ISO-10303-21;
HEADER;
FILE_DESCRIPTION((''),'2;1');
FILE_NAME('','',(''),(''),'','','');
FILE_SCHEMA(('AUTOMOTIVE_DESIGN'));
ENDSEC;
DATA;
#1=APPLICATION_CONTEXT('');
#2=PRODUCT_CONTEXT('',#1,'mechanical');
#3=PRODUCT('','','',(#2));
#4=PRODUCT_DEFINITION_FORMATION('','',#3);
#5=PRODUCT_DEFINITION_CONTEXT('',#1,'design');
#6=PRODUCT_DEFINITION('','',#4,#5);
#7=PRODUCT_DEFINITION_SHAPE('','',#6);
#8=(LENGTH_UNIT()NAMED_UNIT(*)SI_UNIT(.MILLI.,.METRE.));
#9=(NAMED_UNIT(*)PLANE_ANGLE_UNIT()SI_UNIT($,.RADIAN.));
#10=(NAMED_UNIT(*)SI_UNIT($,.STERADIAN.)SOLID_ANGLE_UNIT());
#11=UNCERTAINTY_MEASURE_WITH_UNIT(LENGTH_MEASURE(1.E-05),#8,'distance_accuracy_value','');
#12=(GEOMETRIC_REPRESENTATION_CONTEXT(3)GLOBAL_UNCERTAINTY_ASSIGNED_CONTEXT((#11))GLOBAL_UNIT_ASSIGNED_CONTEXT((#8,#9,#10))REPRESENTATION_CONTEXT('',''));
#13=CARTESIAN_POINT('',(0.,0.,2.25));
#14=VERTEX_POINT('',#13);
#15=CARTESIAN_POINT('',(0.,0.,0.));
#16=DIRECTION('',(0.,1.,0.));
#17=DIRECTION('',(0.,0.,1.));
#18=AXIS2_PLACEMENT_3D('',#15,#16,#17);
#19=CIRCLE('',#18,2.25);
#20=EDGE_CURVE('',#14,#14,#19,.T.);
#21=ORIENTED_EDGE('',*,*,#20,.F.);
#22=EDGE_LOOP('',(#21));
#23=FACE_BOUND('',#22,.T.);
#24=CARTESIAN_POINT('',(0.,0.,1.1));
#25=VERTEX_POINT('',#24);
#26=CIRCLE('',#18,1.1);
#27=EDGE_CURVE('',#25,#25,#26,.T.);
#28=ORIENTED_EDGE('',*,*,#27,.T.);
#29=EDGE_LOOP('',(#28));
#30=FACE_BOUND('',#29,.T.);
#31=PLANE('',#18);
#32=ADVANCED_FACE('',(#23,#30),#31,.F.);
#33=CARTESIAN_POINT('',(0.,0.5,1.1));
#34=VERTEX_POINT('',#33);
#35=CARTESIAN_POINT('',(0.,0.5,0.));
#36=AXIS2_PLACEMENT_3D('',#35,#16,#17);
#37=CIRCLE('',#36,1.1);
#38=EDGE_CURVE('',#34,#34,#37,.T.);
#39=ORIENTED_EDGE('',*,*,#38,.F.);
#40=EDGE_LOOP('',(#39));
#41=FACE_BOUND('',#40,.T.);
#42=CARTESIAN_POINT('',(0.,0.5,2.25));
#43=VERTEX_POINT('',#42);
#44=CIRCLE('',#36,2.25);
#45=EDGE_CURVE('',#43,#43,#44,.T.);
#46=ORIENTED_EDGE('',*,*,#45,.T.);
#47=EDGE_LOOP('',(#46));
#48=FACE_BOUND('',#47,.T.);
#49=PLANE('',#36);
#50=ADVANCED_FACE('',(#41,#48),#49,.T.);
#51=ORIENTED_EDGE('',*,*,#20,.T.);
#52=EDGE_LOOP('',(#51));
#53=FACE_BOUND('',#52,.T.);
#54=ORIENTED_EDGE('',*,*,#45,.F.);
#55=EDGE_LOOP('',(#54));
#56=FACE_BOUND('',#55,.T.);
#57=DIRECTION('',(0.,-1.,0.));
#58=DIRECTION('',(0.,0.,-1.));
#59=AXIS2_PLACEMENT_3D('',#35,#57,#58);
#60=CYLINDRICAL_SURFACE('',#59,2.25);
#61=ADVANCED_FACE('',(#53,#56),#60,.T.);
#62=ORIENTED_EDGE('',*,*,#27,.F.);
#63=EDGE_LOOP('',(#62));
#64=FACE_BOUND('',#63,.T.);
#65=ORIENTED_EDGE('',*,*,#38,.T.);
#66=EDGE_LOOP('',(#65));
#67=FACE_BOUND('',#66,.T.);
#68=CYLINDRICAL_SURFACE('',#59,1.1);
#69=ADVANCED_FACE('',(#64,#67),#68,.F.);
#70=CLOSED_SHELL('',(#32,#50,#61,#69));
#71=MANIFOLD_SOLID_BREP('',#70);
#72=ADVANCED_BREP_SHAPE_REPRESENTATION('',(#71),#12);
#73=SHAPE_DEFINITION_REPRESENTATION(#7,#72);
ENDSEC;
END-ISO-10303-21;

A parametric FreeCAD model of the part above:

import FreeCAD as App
import Part
import Sketcher
Q = App.Units.Quantity

doc = App.newDocument("Part")
body = doc.addObject("PartDesign::Body", "Body")

sketch1 = body.newObject("Sketcher::SketchObject", "Sketch")
sketch1.AttachmentSupport = (doc.getObject("XZ_Plane"), [""])
sketch1.MapMode = "FlatFace"
sketch1.addGeometry([
    Part.Circle(App.Vector(0, 0, 0), App.Vector(0, 0, 1), 2.2),
    Part.Circle(App.Vector(0, 0, 0), App.Vector(0, 0, 1), 1.1),
], False)
sketch1.addConstraint([
    Sketcher.Constraint("Coincident", 0, 3, -1, 1),
    Sketcher.Constraint("Coincident", 1, 3, -1, 1),
    Sketcher.Constraint("Diameter", 0, Q("4.5 mm")),
    Sketcher.Constraint("Diameter", 1, Q("2.2 mm")),
])
pad1 = body.newObject("PartDesign::Pad", "Pad")
pad1.Profile = sketch1
pad1.Length = 0.5
pad1.Reversed = True

doc.recompute()
